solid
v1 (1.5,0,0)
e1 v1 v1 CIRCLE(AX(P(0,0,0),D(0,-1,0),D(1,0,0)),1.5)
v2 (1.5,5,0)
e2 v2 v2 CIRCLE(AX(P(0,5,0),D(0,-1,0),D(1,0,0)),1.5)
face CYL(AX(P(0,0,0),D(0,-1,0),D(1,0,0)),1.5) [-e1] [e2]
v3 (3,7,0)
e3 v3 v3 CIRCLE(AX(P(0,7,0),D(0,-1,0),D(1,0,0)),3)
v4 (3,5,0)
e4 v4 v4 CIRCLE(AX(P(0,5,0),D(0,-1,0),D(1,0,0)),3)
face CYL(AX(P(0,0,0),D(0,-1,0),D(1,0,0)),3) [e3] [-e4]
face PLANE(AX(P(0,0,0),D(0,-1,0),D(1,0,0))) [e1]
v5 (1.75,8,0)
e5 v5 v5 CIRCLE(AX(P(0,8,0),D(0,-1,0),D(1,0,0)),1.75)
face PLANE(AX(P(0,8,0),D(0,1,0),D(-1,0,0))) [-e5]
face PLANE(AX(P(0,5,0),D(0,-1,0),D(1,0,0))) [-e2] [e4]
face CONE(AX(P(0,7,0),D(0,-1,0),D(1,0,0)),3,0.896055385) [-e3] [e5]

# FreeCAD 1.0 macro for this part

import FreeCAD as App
import Part
import Sketcher

V = App.Vector
Q = App.Units.Quantity

doc = App.newDocument("Part")
body = doc.addObject("PartDesign::Body", "Body")

sketch1 = body.newObject("Sketcher::SketchObject", "Sketch")
sketch1.AttachmentSupport = (doc.getObject("XY_Plane"), [""])
sketch1.MapMode = "FlatFace"
sketch1.addGeometry(Part.LineSegment(V(-1.5, 0, 0), V(0, 0, 0)), False)
sketch1.addGeometry(Part.LineSegment(V(0, 0, 0), V(0, 8, 0)), False)
sketch1.addGeometry(Part.LineSegment(V(0, 8, 0), V(-1.75, 8, 0)), False)
sketch1.addGeometry(Part.LineSegment(V(-1.75, 8, 0), V(-3, 7, 0)), False)
sketch1.addGeometry(Part.LineSegment(V(-3, 7, 0), V(-3, 5, 0)), False)
sketch1.addGeometry(Part.LineSegment(V(-3, 5, 0), V(-1.5, 5, 0)), False)
sketch1.addGeometry(Part.LineSegment(V(-1.5, 5, 0), V(-1.5, 0, 0)), False)
sketch1.addConstraint(Sketcher.Constraint("Coincident", 0, 2, 1, 1))
sketch1.addConstraint(Sketcher.Constraint("Coincident", 1, 2, 2, 1))
sketch1.addConstraint(Sketcher.Constraint("Coincident", 2, 2, 3, 1))
sketch1.addConstraint(Sketcher.Constraint("Coincident", 3, 2, 4, 1))
sketch1.addConstraint(Sketcher.Constraint("Coincident", 4, 2, 5, 1))
sketch1.addConstraint(Sketcher.Constraint("Coincident", 5, 2, 6, 1))
sketch1.addConstraint(Sketcher.Constraint("Coincident", 6, 2, 0, 1))
sketch1.addConstraint(Sketcher.Constraint("Horizontal", 0))
sketch1.addConstraint(Sketcher.Constraint("Vertical", 1))
sketch1.addConstraint(Sketcher.Constraint("Horizontal", 2))
sketch1.addConstraint(Sketcher.Constraint("Vertical", 4))
sketch1.addConstraint(Sketcher.Constraint("Horizontal", 5))
sketch1.addConstraint(Sketcher.Constraint("Vertical", 6))
sketch1.addConstraint(Sketcher.Constraint("Coincident", 0, 2, -1, 1))
sketch1.addConstraint(Sketcher.Constraint("Equal", 0, 5))
sketch1.addConstraint(Sketcher.Constraint("DistanceY", 1, 1, 1, 2, Q("8 mm")))
sketch1.addConstraint(Sketcher.Constraint("DistanceY", 4, 2, 4, 1, Q("2 mm")))
sketch1.addConstraint(Sketcher.Constraint("DistanceY", 6, 2, 6, 1, Q("5 mm")))
sketch1.addConstraint(Sketcher.Constraint("DistanceX", 0, 1, 0, 2, Q("1.5 mm")))
sketch1.addConstraint(Sketcher.Constraint("DistanceX", 2, 2, 2, 1, Q("1.75 mm")))
revolution = body.newObject("PartDesign::Revolution", "Revolution")
revolution.Profile = sketch1
revolution.ReferenceAxis = (sketch1, ["V_Axis"])
revolution.Angle = 360

doc.recompute()
